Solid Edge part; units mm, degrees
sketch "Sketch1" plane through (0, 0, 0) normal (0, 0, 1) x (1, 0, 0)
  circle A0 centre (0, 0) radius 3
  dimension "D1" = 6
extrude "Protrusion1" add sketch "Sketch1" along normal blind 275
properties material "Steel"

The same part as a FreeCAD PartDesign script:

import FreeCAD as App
import Part
import Sketcher

V = App.Vector
Q = App.Units.Quantity

doc = App.newDocument("Part")
body = doc.addObject("PartDesign::Body", "Body")

# Sketch on XY plane
sketch1 = body.newObject("Sketcher::SketchObject", "Sketch")
sketch1.AttachmentSupport = (doc.getObject("XY_Plane"), [""])
sketch1.MapMode = "FlatFace"
sketch1.addGeometry(Part.Circle(V(0, 0, 0), V(0, 0, 1), 3), False)
sketch1.addConstraint([
    Sketcher.Constraint("Coincident", 0, 3, -1, 1),
    Sketcher.Constraint("Diameter", 0, Q("6 mm")),
])
pad1 = body.newObject("PartDesign::Pad", "Pad")
pad1.Profile = sketch1
pad1.Length = 275

doc.recompute()
